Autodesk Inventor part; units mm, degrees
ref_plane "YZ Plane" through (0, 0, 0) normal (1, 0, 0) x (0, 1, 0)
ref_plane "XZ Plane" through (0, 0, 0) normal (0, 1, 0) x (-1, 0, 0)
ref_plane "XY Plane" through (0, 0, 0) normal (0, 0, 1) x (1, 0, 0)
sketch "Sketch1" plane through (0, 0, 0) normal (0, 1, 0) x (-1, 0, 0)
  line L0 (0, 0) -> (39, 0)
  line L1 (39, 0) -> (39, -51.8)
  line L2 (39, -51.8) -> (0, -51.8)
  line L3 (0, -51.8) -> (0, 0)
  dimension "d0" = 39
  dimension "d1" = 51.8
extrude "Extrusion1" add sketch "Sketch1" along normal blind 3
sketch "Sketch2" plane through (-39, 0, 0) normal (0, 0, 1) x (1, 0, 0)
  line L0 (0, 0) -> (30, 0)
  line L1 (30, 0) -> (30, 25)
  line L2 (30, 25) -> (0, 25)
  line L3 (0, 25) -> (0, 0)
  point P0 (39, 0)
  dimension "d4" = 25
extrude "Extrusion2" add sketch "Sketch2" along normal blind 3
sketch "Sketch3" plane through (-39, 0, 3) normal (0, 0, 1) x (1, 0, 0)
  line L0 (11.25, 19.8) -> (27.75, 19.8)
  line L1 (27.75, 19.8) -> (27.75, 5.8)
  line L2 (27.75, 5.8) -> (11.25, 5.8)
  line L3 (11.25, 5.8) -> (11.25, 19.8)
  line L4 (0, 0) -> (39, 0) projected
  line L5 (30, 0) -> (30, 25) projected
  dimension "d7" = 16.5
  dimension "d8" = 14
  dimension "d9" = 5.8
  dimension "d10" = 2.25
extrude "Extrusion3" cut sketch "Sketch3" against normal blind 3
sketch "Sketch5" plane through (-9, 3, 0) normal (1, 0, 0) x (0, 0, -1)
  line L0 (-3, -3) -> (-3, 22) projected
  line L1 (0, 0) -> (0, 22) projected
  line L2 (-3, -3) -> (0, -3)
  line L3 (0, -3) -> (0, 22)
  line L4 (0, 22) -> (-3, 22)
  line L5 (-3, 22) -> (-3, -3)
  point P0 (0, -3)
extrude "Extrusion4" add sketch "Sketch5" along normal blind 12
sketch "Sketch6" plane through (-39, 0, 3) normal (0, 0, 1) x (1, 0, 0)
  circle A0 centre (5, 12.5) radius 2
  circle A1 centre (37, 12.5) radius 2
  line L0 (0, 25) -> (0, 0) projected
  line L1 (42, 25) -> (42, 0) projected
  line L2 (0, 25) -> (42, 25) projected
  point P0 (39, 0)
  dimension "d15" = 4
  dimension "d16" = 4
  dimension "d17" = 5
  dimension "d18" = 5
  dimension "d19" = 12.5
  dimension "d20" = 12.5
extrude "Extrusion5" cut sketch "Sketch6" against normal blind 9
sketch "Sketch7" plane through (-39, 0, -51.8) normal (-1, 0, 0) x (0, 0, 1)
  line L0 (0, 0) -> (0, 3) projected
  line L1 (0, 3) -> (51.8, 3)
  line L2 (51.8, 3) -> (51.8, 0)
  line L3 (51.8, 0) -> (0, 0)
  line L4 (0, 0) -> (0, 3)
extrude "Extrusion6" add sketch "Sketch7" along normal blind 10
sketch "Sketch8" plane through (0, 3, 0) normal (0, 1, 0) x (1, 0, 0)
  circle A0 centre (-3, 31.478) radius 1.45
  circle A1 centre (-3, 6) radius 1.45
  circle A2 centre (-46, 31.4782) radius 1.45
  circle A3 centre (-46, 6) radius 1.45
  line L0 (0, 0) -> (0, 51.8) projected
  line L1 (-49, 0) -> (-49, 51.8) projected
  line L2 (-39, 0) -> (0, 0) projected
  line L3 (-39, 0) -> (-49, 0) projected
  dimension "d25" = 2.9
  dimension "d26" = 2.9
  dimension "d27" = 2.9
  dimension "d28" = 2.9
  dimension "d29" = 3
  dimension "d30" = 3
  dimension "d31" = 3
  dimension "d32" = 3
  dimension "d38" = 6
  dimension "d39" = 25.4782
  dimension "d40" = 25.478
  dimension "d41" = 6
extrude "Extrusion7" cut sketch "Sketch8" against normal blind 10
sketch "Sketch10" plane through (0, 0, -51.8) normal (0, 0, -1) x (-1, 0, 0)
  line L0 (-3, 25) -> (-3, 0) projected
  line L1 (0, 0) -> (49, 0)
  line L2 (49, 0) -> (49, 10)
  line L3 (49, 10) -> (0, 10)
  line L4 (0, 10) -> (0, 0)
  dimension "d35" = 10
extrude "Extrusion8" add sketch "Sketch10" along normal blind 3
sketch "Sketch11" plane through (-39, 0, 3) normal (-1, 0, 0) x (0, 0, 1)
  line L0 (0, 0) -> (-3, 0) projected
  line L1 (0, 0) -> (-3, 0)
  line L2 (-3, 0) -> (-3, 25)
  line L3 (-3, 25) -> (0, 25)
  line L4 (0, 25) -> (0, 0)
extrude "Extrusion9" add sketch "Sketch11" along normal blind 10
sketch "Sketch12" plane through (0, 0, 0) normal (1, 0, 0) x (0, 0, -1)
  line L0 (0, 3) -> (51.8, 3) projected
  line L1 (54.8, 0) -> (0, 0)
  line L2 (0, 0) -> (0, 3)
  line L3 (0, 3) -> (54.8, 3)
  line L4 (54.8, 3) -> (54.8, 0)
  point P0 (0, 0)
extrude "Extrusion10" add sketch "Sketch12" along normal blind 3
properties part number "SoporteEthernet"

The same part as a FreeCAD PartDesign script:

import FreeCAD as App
import Part
import Sketcher
from FreeCAD import Vector

doc = App.newDocument("Part")
body = doc.addObject("PartDesign::Body", "Body")

sketch1 = doc.addObject("Sketcher::SketchObject", "Sketch")
body.addObject(sketch1)
sketch1.AttachmentSupport = (doc.XZ_Plane, [""])
sketch1.MapMode = "FlatFace"
sketch1.addGeometry([
    Part.LineSegment(Vector(-39, 0, 0), Vector(0, 0, 0)),
    Part.LineSegment(Vector(0, 0, 0), Vector(0, -51.8, 0)),
    Part.LineSegment(Vector(0, -51.8, 0), Vector(-39, -51.8, 0)),
    Part.LineSegment(Vector(-39, -51.8, 0), Vector(-39, 0, 0)),
], False)
sketch1.addConstraint([
    Sketcher.Constraint("Coincident", 0, 2, 1, 1),
    Sketcher.Constraint("Coincident", 1, 2, 2, 1),
    Sketcher.Constraint("Coincident", 2, 2, 3, 1),
    Sketcher.Constraint("Coincident", 3, 2, 0, 1),
    Sketcher.Constraint("Horizontal", 0),
    Sketcher.Constraint("Vertical", 1),
    Sketcher.Constraint("Horizontal", 2),
    Sketcher.Constraint("Vertical", 3),
    Sketcher.Constraint("Coincident", 0, 2, -1, 1),
    Sketcher.Constraint("DistanceX", 0, 1, 0, 2, 39.0),
    Sketcher.Constraint("DistanceY", 1, 2, 1, 1, 51.8),
])
pad1 = doc.addObject("PartDesign::Pad", "Pad")
body.addObject(pad1)
pad1.Profile = sketch1
pad1.Length = 3
pad1.Reversed = True

sketch2 = doc.addObject("Sketcher::SketchObject", "Sketch001")
body.addObject(sketch2)
sketch2.AttachmentSupport = (doc.XY_Plane, [""])
sketch2.MapMode = "FlatFace"
sketch2.addGeometry([
    Part.LineSegment(Vector(-39, 25, 0), Vector(-39, 0, 0)),
    Part.LineSegment(Vector(-39, 0, 0), Vector(-9, 0, 0)),
    Part.LineSegment(Vector(-9, 0, 0), Vector(-9, 25, 0)),
    Part.LineSegment(Vector(-9, 25, 0), Vector(-39, 25, 0)),
], False)
sketch2.addConstraint([
    Sketcher.Constraint("Coincident", 0, 2, 1, 1),
    Sketcher.Constraint("Coincident", 1, 2, 2, 1),
    Sketcher.Constraint("Coincident", 2, 2, 3, 1),
    Sketcher.Constraint("Coincident", 3, 2, 0, 1),
    Sketcher.Constraint("Vertical", 0),
    Sketcher.Constraint("Horizontal", 1),
    Sketcher.Constraint("Vertical", 2),
    Sketcher.Constraint("Horizontal", 3),
    Sketcher.Constraint("PointOnObject", 0, 2, -1),
    Sketcher.Constraint("DistanceY", 0, 2, 0, 1, 25.0),
    Sketcher.Constraint("DistanceX", 1, 1, 1, 2, 30.0),
    Sketcher.Constraint("DistanceX", 0, 2, -1, 1, 39.0),
])
pad2 = doc.addObject("PartDesign::Pad", "Pad001")
body.addObject(pad2)
pad2.Profile = sketch2
pad2.Length = 3

sketch3 = doc.addObject("Sketcher::SketchObject", "Sketch002")
body.addObject(sketch3)
sketch3.AttachmentSupport = (doc.XY_Plane, [""])
sketch3.MapMode = "FlatFace"
sketch3.AttachmentOffset = App.Placement(Vector(0, 0, 3), App.Rotation())
sketch3.addGeometry([
    Part.LineSegment(Vector(-11.25, 19.8, 0), Vector(-27.75, 19.8, 0)),
    Part.LineSegment(Vector(-27.75, 19.8, 0), Vector(-27.75, 5.8, 0)),
    Part.LineSegment(Vector(-27.75, 5.8, 0), Vector(-11.25, 5.8, 0)),
    Part.LineSegment(Vector(-11.25, 5.8, 0), Vector(-11.25, 19.8, 0)),
], False)
sketch3.addConstraint([
    Sketcher.Constraint("Coincident", 0, 2, 1, 1),
    Sketcher.Constraint("Coincident", 1, 2, 2, 1),
    Sketcher.Constraint("Coincident", 2, 2, 3, 1),
    Sketcher.Constraint("Coincident", 3, 2, 0, 1),
    Sketcher.Constraint("Horizontal", 0),
    Sketcher.Constraint("Vertical", 1),
    Sketcher.Constraint("Horizontal", 2),
    Sketcher.Constraint("Vertical", 3),
    Sketcher.Constraint("DistanceY", 1, 2, 1, 1, 14.0),
    Sketcher.Constraint("DistanceX", 0, 2, 0, 1, 16.5),
    Sketcher.Constraint("DistanceY", -1, 1, 1, 2, 5.8),
    Sketcher.Constraint("DistanceX", 0, 2, -1, 1, 27.75),
])
pocket1 = doc.addObject("PartDesign::Pocket", "Pocket")
body.addObject(pocket1)
pocket1.Profile = sketch3
pocket1.Length = 3

sketch4 = doc.addObject("Sketcher::SketchObject", "Sketch003")
body.addObject(sketch4)
sketch4.AttachmentSupport = (doc.YZ_Plane, [""])
sketch4.MapMode = "FlatFace"
sketch4.AttachmentOffset = App.Placement(Vector(0, 0, -9), App.Rotation())
sketch4.addGeometry([
    Part.LineSegment(Vector(25, 3, 0), Vector(0, 3, 0)),
    Part.LineSegment(Vector(0, 3, 0), Vector(0, 0, 0)),
    Part.LineSegment(Vector(0, 0, 0), Vector(25, 0, 0)),
    Part.LineSegment(Vector(25, 0, 0), Vector(25, 3, 0)),
], False)
sketch4.addConstraint([
    Sketcher.Constraint("Coincident", 0, 2, 1, 1),
    Sketcher.Constraint("Coincident", 1, 2, 2, 1),
    Sketcher.Constraint("Coincident", 2, 2, 3, 1),
    Sketcher.Constraint("Coincident", 3, 2, 0, 1),
    Sketcher.Constraint("Horizontal", 0),
    Sketcher.Constraint("Vertical", 1),
    Sketcher.Constraint("Horizontal", 2),
    Sketcher.Constraint("Vertical", 3),
    Sketcher.Constraint("Coincident", 1, 2, -1, 1),
    Sketcher.Constraint("DistanceX", 0, 2, 0, 1, 25.0),
    Sketcher.Constraint("DistanceY", 1, 2, 1, 1, 3.0),
])
pad3 = doc.addObject("PartDesign::Pad", "Pad002")
body.addObject(pad3)
pad3.Profile = sketch4
pad3.Length = 12

sketch5 = doc.addObject("Sketcher::SketchObject", "Sketch004")
body.addObject(sketch5)
sketch5.AttachmentSupport = (doc.XY_Plane, [""])
sketch5.MapMode = "FlatFace"
sketch5.AttachmentOffset = App.Placement(Vector(0, 0, 3), App.Rotation())
sketch5.addGeometry([
    Part.Circle(Vector(-34, 12.5, 0), Vector(0, 0, 1), 2),
    Part.Circle(Vector(-2, 12.5, 0), Vector(0, 0, 1), 2),
], False)
sketch5.addConstraint([
    Sketcher.Constraint("Equal", 0, 1),
    Sketcher.Constraint("Horizontal", 0, 3, 1, 3),
    Sketcher.Constraint("Diameter", 0, 4.0),
    Sketcher.Constraint("DistanceY", -1, 1, 0, 3, 12.5),
    Sketcher.Constraint("DistanceX", 0, 3, -1, 1, 34.0),
    Sketcher.Constraint("DistanceX", 1, 3, -1, 1, 2.0),
])
pocket2 = doc.addObject("PartDesign::Pocket", "Pocket001")
body.addObject(pocket2)
pocket2.Profile = sketch5
pocket2.Length = 9

sketch6 = doc.addObject("Sketcher::SketchObject", "Sketch005")
body.addObject(sketch6)
sketch6.AttachmentSupport = (doc.YZ_Plane, [""])
sketch6.MapMode = "FlatFace"
sketch6.AttachmentOffset = App.Placement(Vector(0, 0, -39), App.Rotation())
sketch6.addGeometry([
    Part.LineSegment(Vector(3, -51.8, 0), Vector(0, -51.8, 0)),
    Part.LineSegment(Vector(0, -51.8, 0), Vector(0, 0, 0)),
    Part.LineSegment(Vector(0, 0, 0), Vector(3, 0, 0)),
    Part.LineSegment(Vector(3, 0, 0), Vector(3, -51.8, 0)),
], False)
sketch6.addConstraint([
    Sketcher.Constraint("Coincident", 0, 2, 1, 1),
    Sketcher.Constraint("Coincident", 1, 2, 2, 1),
    Sketcher.Constraint("Coincident", 2, 2, 3, 1),
    Sketcher.Constraint("Coincident", 3, 2, 0, 1),
    Sketcher.Constraint("Horizontal", 0),
    Sketcher.Constraint("Vertical", 1),
    Sketcher.Constraint("Horizontal", 2),
    Sketcher.Constraint("Vertical", 3),
    Sketcher.Constraint("Coincident", 1, 2, -1, 1),
    Sketcher.Constraint("DistanceX", 0, 2, 0, 1, 3.0),
    Sketcher.Constraint("DistanceY", 1, 1, 1, 2, 51.8),
])
pad4 = doc.addObject("PartDesign::Pad", "Pad003")
body.addObject(pad4)
pad4.Profile = sketch6
pad4.Length = 10
pad4.Reversed = True

sketch7 = doc.addObject("Sketcher::SketchObject", "Sketch006")
body.addObject(sketch7)
sketch7.AttachmentSupport = (doc.XZ_Plane, [""])
sketch7.MapMode = "FlatFace"
sketch7.AttachmentOffset = App.Placement(Vector(0, 0, -3), App.Rotation())
sketch7.addGeometry([
    Part.Circle(Vector(-3, -31.478, 0), Vector(0, 0, 1), 1.45),
    Part.Circle(Vector(-3, -6, 0), Vector(0, 0, 1), 1.45),
    Part.Circle(Vector(-46, -31.4782, 0), Vector(0, 0, 1), 1.45),
    Part.Circle(Vector(-46, -6, 0), Vector(0, 0, 1), 1.45),
], False)
sketch7.addConstraint([
    Sketcher.Constraint("Equal", 0, 1),
    Sketcher.Constraint("Equal", 1, 2),
    Sketcher.Constraint("Equal", 2, 3),
    Sketcher.Constraint("Horizontal", 0, 3, 2, 3),
    Sketcher.Constraint("Horizontal", 1, 3, 3, 3),
    Sketcher.Constraint("Vertical", 0, 3, 1, 3),
    Sketcher.Constraint("Vertical", 2, 3, 3, 3),
    Sketcher.Constraint("Diameter", 0, 2.9),
    Sketcher.Constraint("DistanceX", 0, 3, -1, 1, 3.0),
    Sketcher.Constraint("DistanceY", 1, 3, -1, 1, 6.0),
    Sketcher.Constraint("DistanceX", 2, 3, -1, 1, 46.0),
    Sketcher.Constraint("DistanceY", 0, 3, 1, 3, 25.478),
])
pocket3 = doc.addObject("PartDesign::Pocket", "Pocket002")
body.addObject(pocket3)
pocket3.Profile = sketch7
pocket3.Length = 10
pocket3.Reversed = True

sketch8 = doc.addObject("Sketcher::SketchObject", "Sketch007")
body.addObject(sketch8)
sketch8.AttachmentSupport = (doc.XY_Plane, [""])
sketch8.MapMode = "FlatFace"
sketch8.AttachmentOffset = App.Placement(Vector(0, 0, -51.8), App.Rotation())
sketch8.addGeometry([
    Part.LineSegment(Vector(0, 10, 0), Vector(0, 0, 0)),
    Part.LineSegment(Vector(0, 0, 0), Vector(-49, 0, 0)),
    Part.LineSegment(Vector(-49, 0, 0), Vector(-49, 10, 0)),
    Part.LineSegment(Vector(-49, 10, 0), Vector(0, 10, 0)),
], False)
sketch8.addConstraint([
    Sketcher.Constraint("Coincident", 0, 2, 1, 1),
    Sketcher.Constraint("Coincident", 1, 2, 2, 1),
    Sketcher.Constraint("Coincident", 2, 2, 3, 1),
    Sketcher.Constraint("Coincident", 3, 2, 0, 1),
    Sketcher.Constraint("Vertical", 0),
    Sketcher.Constraint("Horizontal", 1),
    Sketcher.Constraint("Vertical", 2),
    Sketcher.Constraint("Horizontal", 3),
    Sketcher.Constraint("Coincident", 0, 2, -1, 1),
    Sketcher.Constraint("DistanceY", 0, 2, 0, 1, 10.0),
    Sketcher.Constraint("DistanceX", 1, 2, 1, 1, 49.0),
])
pad5 = doc.addObject("PartDesign::Pad", "Pad004")
body.addObject(pad5)
pad5.Profile = sketch8
pad5.Length = 3
pad5.Reversed = True

sketch9 = doc.addObject("Sketcher::SketchObject", "Sketch008")
body.addObject(sketch9)
sketch9.AttachmentSupport = (doc.YZ_Plane, [""])
sketch9.MapMode = "FlatFace"
sketch9.AttachmentOffset = App.Placement(Vector(0, 0, -39), App.Rotation())
sketch9.addGeometry([
    Part.LineSegment(Vector(0, 0, 0), Vector(0, 3, 0)),
    Part.LineSegment(Vector(0, 3, 0), Vector(25, 3, 0)),
    Part.LineSegment(Vector(25, 3, 0), Vector(25, 0, 0)),
    Part.LineSegment(Vector(25, 0, 0), Vector(0, 0, 0)),
], False)
sketch9.addConstraint([
    Sketcher.Constraint("Coincident", 0, 2, 1, 1),
    Sketcher.Constraint("Coincident", 1, 2, 2, 1),
    Sketcher.Constraint("Coincident", 2, 2, 3, 1),
    Sketcher.Constraint("Coincident", 3, 2, 0, 1),
    Sketcher.Constraint("Vertical", 0),
    Sketcher.Constraint("Horizontal", 1),
    Sketcher.Constraint("Vertical", 2),
    Sketcher.Constraint("Horizontal", 3),
    Sketcher.Constraint("Coincident", 3, 2, -1, 1),
    Sketcher.Constraint("DistanceX", 1, 1, 1, 2, 25.0),
    Sketcher.Constraint("DistanceY", 0, 1, 0, 2, 3.0),
])
pad6 = doc.addObject("PartDesign::Pad", "Pad005")
body.addObject(pad6)
pad6.Profile = sketch9
pad6.Length = 10
pad6.Reversed = True

sketch10 = doc.addObject("Sketcher::SketchObject", "Sketch009")
body.addObject(sketch10)
sketch10.AttachmentSupport = (doc.YZ_Plane, [""])
sketch10.MapMode = "FlatFace"
sketch10.addGeometry([
    Part.LineSegment(Vector(3, -54.8, 0), Vector(3, 0, 0)),
    Part.LineSegment(Vector(3, 0, 0), Vector(0, 0, 0)),
    Part.LineSegment(Vector(0, 0, 0), Vector(0, -54.8, 0)),
    Part.LineSegment(Vector(0, -54.8, 0), Vector(3, -54.8, 0)),
], False)
sketch10.addConstraint([
    Sketcher.Constraint("Coincident", 0, 2, 1, 1),
    Sketcher.Constraint("Coincident", 1, 2, 2, 1),
    Sketcher.Constraint("Coincident", 2, 2, 3, 1),
    Sketcher.Constraint("Coincident", 3, 2, 0, 1),
    Sketcher.Constraint("Vertical", 0),
    Sketcher.Constraint("Horizontal", 1),
    Sketcher.Constraint("Vertical", 2),
    Sketcher.Constraint("Horizontal", 3),
    Sketcher.Constraint("Coincident", 1, 2, -1, 1),
    Sketcher.Constraint("DistanceX", 1, 2, 1, 1, 3.0),
    Sketcher.Constraint("DistanceY", 0, 1, 0, 2, 54.8),
])
pad7 = doc.addObject("PartDesign::Pad", "Pad006")
body.addObject(pad7)
pad7.Profile = sketch10
pad7.Length = 3

doc.recompute()
